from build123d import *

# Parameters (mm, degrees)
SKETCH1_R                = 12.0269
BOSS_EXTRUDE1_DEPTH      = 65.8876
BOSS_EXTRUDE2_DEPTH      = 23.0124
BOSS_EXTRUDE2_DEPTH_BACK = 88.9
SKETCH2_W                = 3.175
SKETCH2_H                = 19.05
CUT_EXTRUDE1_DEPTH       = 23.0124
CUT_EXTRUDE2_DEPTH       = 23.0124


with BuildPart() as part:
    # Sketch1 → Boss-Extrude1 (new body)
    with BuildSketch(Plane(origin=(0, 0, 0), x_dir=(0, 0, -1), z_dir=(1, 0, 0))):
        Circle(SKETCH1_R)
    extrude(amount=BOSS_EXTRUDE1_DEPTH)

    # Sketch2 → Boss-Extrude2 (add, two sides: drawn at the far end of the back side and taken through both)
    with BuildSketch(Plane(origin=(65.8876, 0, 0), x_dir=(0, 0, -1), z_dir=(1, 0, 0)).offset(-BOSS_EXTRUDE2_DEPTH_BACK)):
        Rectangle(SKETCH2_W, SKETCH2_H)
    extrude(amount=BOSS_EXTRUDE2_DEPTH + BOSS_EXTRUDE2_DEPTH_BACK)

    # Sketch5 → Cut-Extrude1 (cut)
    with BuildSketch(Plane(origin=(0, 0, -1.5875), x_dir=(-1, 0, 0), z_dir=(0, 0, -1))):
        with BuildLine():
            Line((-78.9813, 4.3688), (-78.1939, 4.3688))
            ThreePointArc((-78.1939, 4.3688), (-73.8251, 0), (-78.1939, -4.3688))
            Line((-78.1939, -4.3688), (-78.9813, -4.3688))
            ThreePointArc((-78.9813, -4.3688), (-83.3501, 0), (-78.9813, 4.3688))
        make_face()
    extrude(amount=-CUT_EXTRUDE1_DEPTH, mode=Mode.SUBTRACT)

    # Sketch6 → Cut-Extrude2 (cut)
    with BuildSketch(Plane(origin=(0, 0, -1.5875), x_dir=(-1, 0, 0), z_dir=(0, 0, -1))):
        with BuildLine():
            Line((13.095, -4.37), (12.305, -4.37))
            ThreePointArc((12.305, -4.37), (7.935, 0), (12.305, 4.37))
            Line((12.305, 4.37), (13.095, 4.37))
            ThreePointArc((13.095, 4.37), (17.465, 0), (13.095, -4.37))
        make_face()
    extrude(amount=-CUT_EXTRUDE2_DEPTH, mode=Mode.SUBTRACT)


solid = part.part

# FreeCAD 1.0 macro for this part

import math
import FreeCAD as App
import Part
import Sketcher
from FreeCAD import Vector
Q = App.Units.Quantity


def add_polygon(sketch, points):
    """Adds a closed chain of lines whose ends are joined by coincident constraints."""
    first, n = sketch.GeometryCount, len(points)
    for a, b in zip(points, points[1:] + points[:1]):
        sketch.addGeometry(Part.LineSegment(App.Vector(*a, 0), App.Vector(*b, 0)), False)
    for i in range(n):
        sketch.addConstraint(Sketcher.Constraint("Coincident", first + i, 2, first + (i + 1) % n, 1))

doc = App.newDocument("Part")
body = doc.addObject("PartDesign::Body", "Body")

sketch1 = body.newObject("Sketcher::SketchObject", "Sketch")
sketch1.AttachmentSupport = (doc.getObject("YZ_Plane"), [""])
sketch1.MapMode = "FlatFace"
sketch1.addGeometry(Part.Circle(Vector(0, 0, 0), Vector(0, 0, 1), 12.0269), False)
sketch1.addConstraint(Sketcher.Constraint("Coincident", 0, 3, -1, 1))
sketch1.addConstraint(Sketcher.Constraint("Diameter", 0, Q("0.947 in")))
pad1 = body.newObject("PartDesign::Pad", "Pad")
pad1.Profile = sketch1
pad1.Length = Q("2.594 in")

sketch2 = body.newObject("Sketcher::SketchObject", "Sketch001")
sketch2.AttachmentSupport = (doc.getObject("YZ_Plane"), [""])
sketch2.MapMode = "FlatFace"
sketch2.AttachmentOffset = App.Placement(Vector(0, 0, 2.594 * 25.4), App.Rotation())
add_polygon(sketch2, [(9.525, 1.5875), (-9.525, 1.5875), (-9.525, -1.5875), (9.525, -1.5875)])
sketch2.addConstraint(Sketcher.Constraint("Horizontal", 0))
sketch2.addConstraint(Sketcher.Constraint("Vertical", 1))
sketch2.addConstraint(Sketcher.Constraint("Horizontal", 2))
sketch2.addConstraint(Sketcher.Constraint("Vertical", 3))
sketch2.addConstraint(Sketcher.Constraint("Symmetric", 0, 2, 2, 2, -1, 1))
sketch2.addConstraint(Sketcher.Constraint("DistanceX", 0, 2, 0, 1, Q("0.75 in")))
sketch2.addConstraint(Sketcher.Constraint("DistanceY", 1, 2, 1, 1, Q("0.125 in")))
pad2 = body.newObject("PartDesign::Pad", "Pad001")
pad2.Profile = sketch2
pad2.Type = "TwoLengths"
pad2.Length = Q("0.906 in")
pad2.Length2 = Q("3.5 in")

sketch3 = body.newObject("Sketcher::SketchObject", "Sketch002")
sketch3.AttachmentSupport = (doc.getObject("XY_Plane"), [""])
sketch3.MapMode = "FlatFace"
sketch3.AttachmentOffset = App.Placement(Vector(0, 0, -0.0625 * 25.4), App.Rotation())
sketch3.addGeometry(Part.LineSegment(Vector(78.1939, 4.3688, 0), Vector(78.9813, 4.3688, 0)), False)
sketch3.addGeometry(Part.ArcOfCircle(Part.Circle(Vector(78.9813, 0, 0), Vector(0, 0, 1), 4.3688), math.radians(-90), math.radians(90)), False)
sketch3.addGeometry(Part.LineSegment(Vector(78.9813, -4.3688, 0), Vector(78.1939, -4.3688, 0)), False)
sketch3.addGeometry(Part.ArcOfCircle(Part.Circle(Vector(78.1939, 0, 0), Vector(0, 0, 1), 4.3688), math.radians(90), math.radians(270)), False)
sketch3.addConstraint(Sketcher.Constraint("Tangent", 0, 2, 1, 2))
sketch3.addConstraint(Sketcher.Constraint("Tangent", 1, 1, 2, 1))
sketch3.addConstraint(Sketcher.Constraint("Tangent", 2, 2, 3, 2))
sketch3.addConstraint(Sketcher.Constraint("Tangent", 3, 1, 0, 1))
sketch3.addConstraint(Sketcher.Constraint("Horizontal", 0))
sketch3.addConstraint(Sketcher.Constraint("Horizontal", 2))
sketch3.addConstraint(Sketcher.Constraint("PointOnObject", 1, 3, -1))
sketch3.addConstraint(Sketcher.Constraint("Radius", 1, Q("0.172 in")))
sketch3.addConstraint(Sketcher.Constraint("DistanceX", 0, 1, 0, 2, Q("0.031 in")))
sketch3.addConstraint(Sketcher.Constraint("DistanceX", -1, 1, 1, 3, Q("3.1095 in")))
pocket1 = body.newObject("PartDesign::Pocket", "Pocket")
pocket1.Profile = sketch3
pocket1.Length = Q("0.906 in")
pocket1.Reversed = True

sketch4 = body.newObject("Sketcher::SketchObject", "Sketch003")
sketch4.AttachmentSupport = (doc.getObject("XY_Plane"), [""])
sketch4.MapMode = "FlatFace"
sketch4.AttachmentOffset = App.Placement(Vector(0, 0, -0.0625 * 25.4), App.Rotation())
sketch4.addGeometry(Part.LineSegment(Vector(-12.305, -4.37, 0), Vector(-13.095, -4.37, 0)), False)
sketch4.addGeometry(Part.ArcOfCircle(Part.Circle(Vector(-13.095, 0, 0), Vector(0, 0, 1), 4.37), math.radians(90), math.radians(270)), False)
sketch4.addGeometry(Part.LineSegment(Vector(-13.095, 4.37, 0), Vector(-12.305, 4.37, 0)), False)
sketch4.addGeometry(Part.ArcOfCircle(Part.Circle(Vector(-12.305, 0, 0), Vector(0, 0, 1), 4.37), math.radians(-90), math.radians(90)), False)
sketch4.addConstraint(Sketcher.Constraint("Tangent", 0, 2, 1, 2))
sketch4.addConstraint(Sketcher.Constraint("Tangent", 1, 1, 2, 1))
sketch4.addConstraint(Sketcher.Constraint("Tangent", 2, 2, 3, 2))
sketch4.addConstraint(Sketcher.Constraint("Tangent", 3, 1, 0, 1))
sketch4.addConstraint(Sketcher.Constraint("Horizontal", 0))
sketch4.addConstraint(Sketcher.Constraint("Horizontal", 2))
sketch4.addConstraint(Sketcher.Constraint("PointOnObject", 1, 3, -1))
sketch4.addConstraint(Sketcher.Constraint("Radius", 1, 4.37))
sketch4.addConstraint(Sketcher.Constraint("DistanceX", 0, 2, 0, 1, 0.79))
sketch4.addConstraint(Sketcher.Constraint("DistanceX", 1, 3, -1, 1, 13.095))
pocket2 = body.newObject("PartDesign::Pocket", "Pocket001")
pocket2.Profile = sketch4
pocket2.Length = Q("0.906 in")
pocket2.Reversed = True

doc.recompute()
